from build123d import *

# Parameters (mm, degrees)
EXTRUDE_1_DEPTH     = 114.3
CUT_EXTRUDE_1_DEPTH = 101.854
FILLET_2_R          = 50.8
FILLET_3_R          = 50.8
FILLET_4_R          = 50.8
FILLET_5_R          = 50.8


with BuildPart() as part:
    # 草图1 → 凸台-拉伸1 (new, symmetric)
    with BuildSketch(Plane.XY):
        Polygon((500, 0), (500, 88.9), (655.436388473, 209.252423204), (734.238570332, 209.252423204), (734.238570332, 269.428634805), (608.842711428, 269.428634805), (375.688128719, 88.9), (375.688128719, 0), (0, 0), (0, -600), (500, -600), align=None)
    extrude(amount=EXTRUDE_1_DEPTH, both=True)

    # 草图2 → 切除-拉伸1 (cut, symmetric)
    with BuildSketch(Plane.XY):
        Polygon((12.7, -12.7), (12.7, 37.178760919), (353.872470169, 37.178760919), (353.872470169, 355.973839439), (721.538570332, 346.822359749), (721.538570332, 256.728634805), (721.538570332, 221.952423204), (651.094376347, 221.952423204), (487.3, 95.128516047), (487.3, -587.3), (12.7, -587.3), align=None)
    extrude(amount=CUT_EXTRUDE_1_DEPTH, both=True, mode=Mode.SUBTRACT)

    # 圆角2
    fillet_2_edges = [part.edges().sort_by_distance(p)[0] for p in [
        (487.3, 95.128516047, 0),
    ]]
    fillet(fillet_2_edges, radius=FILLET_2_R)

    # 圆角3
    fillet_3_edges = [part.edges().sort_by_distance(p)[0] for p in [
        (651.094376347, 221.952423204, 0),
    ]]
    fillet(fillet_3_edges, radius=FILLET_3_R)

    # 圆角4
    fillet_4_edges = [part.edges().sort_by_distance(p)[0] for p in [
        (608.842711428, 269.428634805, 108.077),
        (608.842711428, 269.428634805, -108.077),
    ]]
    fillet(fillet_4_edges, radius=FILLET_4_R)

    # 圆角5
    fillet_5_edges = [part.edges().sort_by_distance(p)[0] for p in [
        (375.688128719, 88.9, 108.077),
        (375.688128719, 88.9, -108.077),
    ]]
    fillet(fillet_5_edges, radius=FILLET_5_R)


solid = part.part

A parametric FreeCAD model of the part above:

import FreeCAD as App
import Part
import Sketcher


def edges_at(feature, points):
    """Names of the edges that pass closest to the given points."""
    edges = feature.Shape.Edges
    near = lambda p: min(range(len(edges)), key=lambda i: edges[i].distToShape(Part.Vertex(*p))[0])
    return sorted({f"Edge{near(p) + 1}" for p in points})

doc = App.newDocument("Part")
params = doc.addObject("Spreadsheet::Sheet", "Params")
for row, (alias, value) in enumerate([
    ("sketch1_width", "500 mm"),
    ("sketch1_height", "600 mm"),
    ("sketch1_height2", "88.9 mm"),
    ("pad1_length", "228.6 mm"),
    ("sketch2_width", "474.6 mm"),
    ("pocket1_length", "203.708 mm"),
    ("fillet_radius", "50.8 mm"),
    ("fillet2_radius", "50.8 mm"),
    ("fillet3_radius", "50.8 mm"),
    ("fillet4_radius", "50.8 mm"),
], start=1):
    params.set(f"A{row}", alias)
    params.set(f"B{row}", "=" + value)
    params.setAlias(f"B{row}", alias)

body = doc.addObject("PartDesign::Body", "Body")

# Sketch on XY plane
sketch1 = body.newObject("Sketcher::SketchObject", "Sketch")
sketch1.AttachmentSupport = (doc.getObject("XY_Plane"), [""])
sketch1.MapMode = "FlatFace"
sketch1.addGeometry([
    Part.LineSegment(App.Vector(500, 89, 0), App.Vector(655, 209, 0)),  # 0
    Part.LineSegment(App.Vector(655, 209, 0), App.Vector(734, 209, 0)),  # 1
    Part.LineSegment(App.Vector(734, 209, 0), App.Vector(734, 269, 0)),  # 2
    Part.LineSegment(App.Vector(734, 269, 0), App.Vector(609, 269, 0)),  # 3
    Part.LineSegment(App.Vector(609, 269, 0), App.Vector(376, 89, 0)),  # 4
    Part.LineSegment(App.Vector(376, 89, 0), App.Vector(376, 0, 0)),  # 5
    Part.LineSegment(App.Vector(376, 0, 0), App.Vector(0, 0, 0)),  # 6
    Part.LineSegment(App.Vector(0, 0, 0), App.Vector(0, -600, 0)),  # 7
    Part.LineSegment(App.Vector(0, -600, 0), App.Vector(500, -600, 0)),  # 8
    Part.LineSegment(App.Vector(500, -600, 0), App.Vector(500, 89, 0)),  # 9
], False)
sketch1.addConstraint([
    Sketcher.Constraint("Coincident", 0, 2, 1, 1),
    Sketcher.Constraint("Coincident", 1, 2, 2, 1),
    Sketcher.Constraint("Coincident", 2, 2, 3, 1),
    Sketcher.Constraint("Coincident", 3, 2, 4, 1),
    Sketcher.Constraint("Coincident", 4, 2, 5, 1),
    Sketcher.Constraint("Coincident", 5, 2, 6, 1),
    Sketcher.Constraint("Coincident", 6, 2, 7, 1),
    Sketcher.Constraint("Coincident", 7, 2, 8, 1),
    Sketcher.Constraint("Coincident", 8, 2, 9, 1),
    Sketcher.Constraint("Coincident", 9, 2, 0, 1),
    Sketcher.Constraint("Horizontal", 1),
    Sketcher.Constraint("Vertical", 2),
    Sketcher.Constraint("Horizontal", 3),
    Sketcher.Constraint("Vertical", 5),
    Sketcher.Constraint("Horizontal", 6),
    Sketcher.Constraint("Vertical", 7),
    Sketcher.Constraint("Horizontal", 8),
    Sketcher.Constraint("Vertical", 9),
    Sketcher.Constraint("Coincident", 6, 2, -1, 1),
    Sketcher.Constraint("Parallel", 0, 4),
    Sketcher.Constraint("Horizontal", 4, 2, 9, 2),
    Sketcher.Constraint("DistanceX", 8, 1, 8, 2, 500.0),
    Sketcher.Constraint("DistanceY", 7, 2, 7, 1, 600.0),
    Sketcher.Constraint("DistanceY", 5, 2, 5, 1, 88.9),
    Sketcher.Constraint("DistanceX", 1, 1, 1, 2, 78.802182),
    Sketcher.Constraint("DistanceX", 3, 2, 3, 1, 125.395859),
    Sketcher.Constraint("DistanceX", 6, 2, 6, 1, 375.688129),
    Sketcher.Constraint("DistanceY", 2, 1, 2, 2, 60.176212),
    Sketcher.Constraint("DistanceX", -1, 1, 0, 2, 655.436388),
])
sketch1.setExpression("Constraints[21]", "Params.sketch1_width")
sketch1.setExpression("Constraints[22]", "Params.sketch1_height")
sketch1.setExpression("Constraints[23]", "Params.sketch1_height2")
pad1 = body.newObject("PartDesign::Pad", "Pad")
pad1.Profile = sketch1
pad1.setExpression("Length", "Params.pad1_length")
pad1.Midplane = True

# Sketch on XY plane
sketch2 = body.newObject("Sketcher::SketchObject", "Sketch001")
sketch2.AttachmentSupport = (doc.getObject("XY_Plane"), [""])
sketch2.MapMode = "FlatFace"
sketch2.addGeometry([
    Part.LineSegment(App.Vector(13, 37, 0), App.Vector(13, -587, 0)),  # 0
    Part.LineSegment(App.Vector(13, -587, 0), App.Vector(487, -587, 0)),  # 1
    Part.LineSegment(App.Vector(487, -587, 0), App.Vector(487, 95, 0)),  # 2
    Part.LineSegment(App.Vector(487, 95, 0), App.Vector(651, 222, 0)),  # 3
    Part.LineSegment(App.Vector(651, 222, 0), App.Vector(722, 222, 0)),  # 4
    Part.LineSegment(App.Vector(722, 222, 0), App.Vector(722, 347, 0)),  # 5
    Part.LineSegment(App.Vector(722, 347, 0), App.Vector(354, 356, 0)),  # 6
    Part.LineSegment(App.Vector(354, 356, 0), App.Vector(354, 37, 0)),  # 7
    Part.LineSegment(App.Vector(354, 37, 0), App.Vector(13, 37, 0)),  # 8
], False)
sketch2.addConstraint([
    Sketcher.Constraint("Coincident", 0, 2, 1, 1),
    Sketcher.Constraint("Coincident", 1, 2, 2, 1),
    Sketcher.Constraint("Coincident", 2, 2, 3, 1),
    Sketcher.Constraint("Coincident", 3, 2, 4, 1),
    Sketcher.Constraint("Coincident", 4, 2, 5, 1),
    Sketcher.Constraint("Coincident", 5, 2, 6, 1),
    Sketcher.Constraint("Coincident", 6, 2, 7, 1),
    Sketcher.Constraint("Coincident", 7, 2, 8, 1),
    Sketcher.Constraint("Coincident", 8, 2, 0, 1),
    Sketcher.Constraint("Vertical", 0),
    Sketcher.Constraint("Horizontal", 1),
    Sketcher.Constraint("Vertical", 2),
    Sketcher.Constraint("Horizontal", 4),
    Sketcher.Constraint("Vertical", 5),
    Sketcher.Constraint("Vertical", 7),
    Sketcher.Constraint("Horizontal", 8),
    Sketcher.Constraint("DistanceX", 1, 1, 1, 2, 474.6),
    Sketcher.Constraint("DistanceX", -1, 1, 0, 2, 12.7),
    Sketcher.Constraint("DistanceY", 0, 2, -1, 1, 587.3),
    Sketcher.Constraint("DistanceX", 8, 2, 8, 1, 341.17247),
    Sketcher.Constraint("DistanceY", 0, 2, 0, 1, 624.478761),
    Sketcher.Constraint("DistanceY", 7, 2, 7, 1, 318.795079),
    Sketcher.Constraint("DistanceX", 6, 2, 5, 2, 367.6661),
    Sketcher.Constraint("DistanceY", 7, 2, 5, 2, 309.643599),
    Sketcher.Constraint("DistanceX", 4, 1, 4, 2, 70.444194),
    Sketcher.Constraint("DistanceY", 2, 1, 2, 2, 682.428516),
    Sketcher.Constraint("DistanceY", 5, 1, 5, 2, 124.869937),
])
sketch2.setExpression("Constraints[16]", "Params.sketch2_width")
pocket1 = body.newObject("PartDesign::Pocket", "Pocket")
pocket1.Profile = sketch2
pocket1.setExpression("Length", "Params.pocket1_length")
pocket1.Midplane = True
doc.recompute()

fillet = body.newObject("PartDesign::Fillet", "Fillet")
fillet.Base = (pocket1, edges_at(pocket1, [(487.3, 95.129, 0)]))
fillet.setExpression("Radius", "Params.fillet_radius")
doc.recompute()

fillet2 = body.newObject("PartDesign::Fillet", "Fillet001")
fillet2.Base = (fillet, edges_at(fillet, [(651.094, 221.952, 0)]))
fillet2.setExpression("Radius", "Params.fillet2_radius")
doc.recompute()

fillet3 = body.newObject("PartDesign::Fillet", "Fillet002")
fillet3.Base = (fillet2, edges_at(fillet2, [(608.843, 269.429, 108.077), (608.843, 269.429, -108.077)]))
fillet3.setExpression("Radius", "Params.fillet3_radius")
doc.recompute()

fillet4 = body.newObject("PartDesign::Fillet", "Fillet003")
fillet4.Base = (fillet3, edges_at(fillet3, [(375.688, 88.9, 108.077), (375.688, 88.9, -108.077)]))
fillet4.setExpression("Radius", "Params.fillet4_radius")

doc.recompute()
